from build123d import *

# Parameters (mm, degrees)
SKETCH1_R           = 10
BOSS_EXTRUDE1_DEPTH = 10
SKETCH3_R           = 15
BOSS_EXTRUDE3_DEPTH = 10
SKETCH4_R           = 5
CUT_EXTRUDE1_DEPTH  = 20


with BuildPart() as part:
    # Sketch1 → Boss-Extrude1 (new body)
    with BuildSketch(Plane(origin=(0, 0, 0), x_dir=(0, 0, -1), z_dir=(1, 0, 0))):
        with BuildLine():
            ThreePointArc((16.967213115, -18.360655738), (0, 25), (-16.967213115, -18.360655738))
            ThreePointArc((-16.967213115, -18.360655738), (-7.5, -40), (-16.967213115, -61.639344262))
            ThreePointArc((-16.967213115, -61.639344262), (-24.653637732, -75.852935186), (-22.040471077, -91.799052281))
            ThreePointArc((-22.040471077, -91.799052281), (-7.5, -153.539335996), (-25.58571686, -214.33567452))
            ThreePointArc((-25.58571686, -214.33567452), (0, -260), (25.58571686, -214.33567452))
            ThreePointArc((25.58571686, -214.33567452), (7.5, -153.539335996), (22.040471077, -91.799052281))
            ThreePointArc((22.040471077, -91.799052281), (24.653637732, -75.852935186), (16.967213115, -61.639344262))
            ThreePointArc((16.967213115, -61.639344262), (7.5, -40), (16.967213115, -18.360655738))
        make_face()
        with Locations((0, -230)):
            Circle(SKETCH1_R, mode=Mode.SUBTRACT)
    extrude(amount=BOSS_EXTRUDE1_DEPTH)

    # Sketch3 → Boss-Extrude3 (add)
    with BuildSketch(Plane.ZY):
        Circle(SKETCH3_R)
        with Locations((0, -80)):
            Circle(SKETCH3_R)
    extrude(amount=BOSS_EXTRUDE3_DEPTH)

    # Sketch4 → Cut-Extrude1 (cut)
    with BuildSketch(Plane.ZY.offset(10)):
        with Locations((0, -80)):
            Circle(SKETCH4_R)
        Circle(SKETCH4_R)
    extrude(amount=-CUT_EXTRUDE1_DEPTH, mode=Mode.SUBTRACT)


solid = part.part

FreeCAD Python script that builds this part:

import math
import FreeCAD as App
import Part
import Sketcher
from FreeCAD import Vector

doc = App.newDocument("Part")
params = doc.addObject("Spreadsheet::Sheet", "Params")
for row, (alias, value) in enumerate([
    ("sketch1_diameter", "20 mm"),
    ("sketch1_radius", "25 mm"),
    ("sketch1_radius2", "30 mm"),
    ("pad1_length", "10 mm"),
    ("sketch2_diameter", "30 mm"),
    ("pad2_length", "10 mm"),
    ("sketch3_diameter", "10 mm"),
    ("pocket1_length", "20 mm"),
], start=1):
    params.set(f"A{row}", alias)
    params.set(f"B{row}", "=" + value)
    params.setAlias(f"B{row}", alias)

body = doc.addObject("PartDesign::Body", "Body")

# Sketch on YZ plane
sketch1 = body.newObject("Sketcher::SketchObject", "Sketch")
sketch1.AttachmentSupport = (doc.getObject("YZ_Plane"), [""])
sketch1.MapMode = "FlatFace"
sketch1.addGeometry(Part.ArcOfCircle(Part.Circle(Vector(0, 0, 0), Vector(0, 0, 1), 25), math.radians(-137), math.radians(137)), False)
sketch1.addGeometry(Part.ArcOfCircle(Part.Circle(Vector(-40, 37, 0), Vector(0, 0, 1), 29), math.radians(-137), math.radians(-43)), False)
sketch1.addGeometry(Part.ArcOfCircle(Part.Circle(Vector(-80, 0, 0), Vector(0, 0, 1), 25), math.radians(43), math.radians(118)), False)
sketch1.addGeometry(Part.ArcOfCircle(Part.Circle(Vector(-150, 131, 0), Vector(0, 0, 1), 123), math.radians(-121), math.radians(-62)), False)
sketch1.addGeometry(Part.ArcOfCircle(Part.Circle(Vector(-230, 0, 0), Vector(0, 0, 1), 30), math.radians(59), math.radians(301)), False)
sketch1.addGeometry(Part.ArcOfCircle(Part.Circle(Vector(-150, -131, 0), Vector(0, 0, 1), 123), math.radians(62), math.radians(121)), False)
sketch1.addGeometry(Part.ArcOfCircle(Part.Circle(Vector(-80, 0, 0), Vector(0, 0, 1), 25), math.radians(-118), math.radians(-43)), False)
sketch1.addGeometry(Part.ArcOfCircle(Part.Circle(Vector(-40, -37, 0), Vector(0, 0, 1), 29), math.radians(43), math.radians(137)), False)
sketch1.addGeometry(Part.Circle(Vector(-230, 0, 0), Vector(0, 0, 1), 10), False)
sketch1.addConstraint(Sketcher.Constraint("Tangent", 0, 2, 1, 2))
sketch1.addConstraint(Sketcher.Constraint("Tangent", 1, 1, 2, 1))
sketch1.addConstraint(Sketcher.Constraint("Tangent", 2, 2, 3, 2))
sketch1.addConstraint(Sketcher.Constraint("Tangent", 3, 1, 4, 1))
sketch1.addConstraint(Sketcher.Constraint("Tangent", 4, 2, 5, 2))
sketch1.addConstraint(Sketcher.Constraint("Tangent", 5, 1, 6, 1))
sketch1.addConstraint(Sketcher.Constraint("Tangent", 6, 2, 7, 2))
sketch1.addConstraint(Sketcher.Constraint("Tangent", 7, 1, 0, 1))
sketch1.addConstraint(Sketcher.Constraint("Coincident", 0, 3, -1, 1))
sketch1.addConstraint(Sketcher.Constraint("Coincident", 6, 3, 2, 3))
sketch1.addConstraint(Sketcher.Constraint("Coincident", 8, 3, 4, 3))
sketch1.addConstraint(Sketcher.Constraint("Equal", 0, 2))
sketch1.addConstraint(Sketcher.Constraint("Equal", 3, 5))
sketch1.addConstraint(Sketcher.Constraint("Equal", 2, 6))
sketch1.addConstraint(Sketcher.Constraint("Equal", 1, 7))
sketch1.addConstraint(Sketcher.Constraint("Symmetric", 3, 3, 5, 3, -1))
sketch1.addConstraint(Sketcher.Constraint("Diameter", 8, 20.0))
sketch1.addConstraint(Sketcher.Constraint("Radius", 0, 25.0))
sketch1.addConstraint(Sketcher.Constraint("Radius", 4, 30.0))
sketch1.addConstraint(Sketcher.Constraint("DistanceX", 1, 3, -1, 1, 40.0))
sketch1.addConstraint(Sketcher.Constraint("DistanceX", 4, 3, -1, 1, 230.0))
sketch1.addConstraint(Sketcher.Constraint("Radius", 3, 123.263101))
sketch1.addConstraint(Sketcher.Constraint("Radius", 1, 29.464286))
sketch1.setExpression("Constraints[16]", "Params.sketch1_diameter")
sketch1.setExpression("Constraints[17]", "Params.sketch1_radius")
sketch1.setExpression("Constraints[18]", "Params.sketch1_radius2")
pad1 = body.newObject("PartDesign::Pad", "Pad")
pad1.Profile = sketch1
pad1.setExpression("Length", "Params.pad1_length")

# Sketch on YZ plane
sketch2 = body.newObject("Sketcher::SketchObject", "Sketch001")
sketch2.AttachmentSupport = (doc.getObject("YZ_Plane"), [""])
sketch2.MapMode = "FlatFace"
sketch2.addGeometry(Part.Circle(Vector(0, 0, 0), Vector(0, 0, 1), 15), False)
sketch2.addGeometry(Part.Circle(Vector(-80, 0, 0), Vector(0, 0, 1), 15), False)
sketch2.addConstraint(Sketcher.Constraint("Coincident", 0, 3, -1, 1))
sketch2.addConstraint(Sketcher.Constraint("Equal", 0, 1))
sketch2.addConstraint(Sketcher.Constraint("PointOnObject", 1, 3, -1))
sketch2.addConstraint(Sketcher.Constraint("Diameter", 0, 30.0))
sketch2.addConstraint(Sketcher.Constraint("DistanceX", 1, 3, -1, 1, 80.0))
sketch2.setExpression("Constraints[3]", "Params.sketch2_diameter")
pad2 = body.newObject("PartDesign::Pad", "Pad001")
pad2.Profile = sketch2
pad2.setExpression("Length", "Params.pad2_length")
pad2.Reversed = True

# Sketch on YZ plane
sketch3 = body.newObject("Sketcher::SketchObject", "Sketch002")
sketch3.AttachmentSupport = (doc.getObject("YZ_Plane"), [""])
sketch3.MapMode = "FlatFace"
sketch3.AttachmentOffset = App.Placement(Vector(0, 0, -10), App.Rotation())
sketch3.addGeometry(Part.Circle(Vector(-80, 0, 0), Vector(0, 0, 1), 5), False)
sketch3.addGeometry(Part.Circle(Vector(0, 0, 0), Vector(0, 0, 1), 5), False)
sketch3.addConstraint(Sketcher.Constraint("Coincident", 1, 3, -1, 1))
sketch3.addConstraint(Sketcher.Constraint("Equal", 0, 1))
sketch3.addConstraint(Sketcher.Constraint("PointOnObject", 0, 3, -1))
sketch3.addConstraint(Sketcher.Constraint("Diameter", 0, 10.0))
sketch3.addConstraint(Sketcher.Constraint("DistanceX", 0, 3, -1, 1, 80.0))
sketch3.setExpression("Constraints[3]", "Params.sketch3_diameter")
pocket1 = body.newObject("PartDesign::Pocket", "Pocket")
pocket1.Profile = sketch3
pocket1.setExpression("Length", "Params.pocket1_length")
pocket1.Reversed = True

doc.recompute()
